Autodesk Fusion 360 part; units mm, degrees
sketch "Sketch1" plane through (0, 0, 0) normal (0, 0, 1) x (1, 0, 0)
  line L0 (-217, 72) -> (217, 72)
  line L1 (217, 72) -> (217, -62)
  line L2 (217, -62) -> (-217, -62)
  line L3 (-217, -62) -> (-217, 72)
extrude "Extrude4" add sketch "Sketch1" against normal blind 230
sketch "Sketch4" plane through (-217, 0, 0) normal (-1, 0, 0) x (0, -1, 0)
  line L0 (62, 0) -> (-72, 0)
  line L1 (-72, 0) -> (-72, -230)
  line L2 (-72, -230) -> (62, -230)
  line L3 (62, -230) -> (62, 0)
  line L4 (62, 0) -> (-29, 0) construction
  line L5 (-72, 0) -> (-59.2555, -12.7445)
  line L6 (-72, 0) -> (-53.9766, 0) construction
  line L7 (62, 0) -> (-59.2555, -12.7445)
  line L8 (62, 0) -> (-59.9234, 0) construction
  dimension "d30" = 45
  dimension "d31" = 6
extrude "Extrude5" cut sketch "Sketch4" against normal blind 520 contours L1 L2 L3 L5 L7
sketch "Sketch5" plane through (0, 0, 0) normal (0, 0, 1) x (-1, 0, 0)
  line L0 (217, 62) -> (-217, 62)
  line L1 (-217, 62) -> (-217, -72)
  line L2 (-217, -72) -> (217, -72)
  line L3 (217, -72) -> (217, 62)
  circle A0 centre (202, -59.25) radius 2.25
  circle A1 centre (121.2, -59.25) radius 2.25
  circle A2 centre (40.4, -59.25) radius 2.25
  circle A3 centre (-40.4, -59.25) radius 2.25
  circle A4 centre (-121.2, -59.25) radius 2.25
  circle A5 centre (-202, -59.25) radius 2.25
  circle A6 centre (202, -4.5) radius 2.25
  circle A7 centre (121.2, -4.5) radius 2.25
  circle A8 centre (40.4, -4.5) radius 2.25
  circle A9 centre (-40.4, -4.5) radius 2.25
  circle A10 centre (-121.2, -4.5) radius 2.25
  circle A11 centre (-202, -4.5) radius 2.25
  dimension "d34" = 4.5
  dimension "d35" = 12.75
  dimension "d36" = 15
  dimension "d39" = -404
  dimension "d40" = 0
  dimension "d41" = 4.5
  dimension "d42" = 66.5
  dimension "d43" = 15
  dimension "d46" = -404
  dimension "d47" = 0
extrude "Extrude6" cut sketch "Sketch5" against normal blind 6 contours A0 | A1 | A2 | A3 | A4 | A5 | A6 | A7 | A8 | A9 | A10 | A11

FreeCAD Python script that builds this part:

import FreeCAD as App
import Part
import Sketcher
Q = App.Units.Quantity


def add_polygon(sketch, points):
    """Adds a closed chain of lines whose ends are joined by coincident constraints."""
    first, n = sketch.GeometryCount, len(points)
    for a, b in zip(points, points[1:] + points[:1]):
        sketch.addGeometry(Part.LineSegment(App.Vector(*a, 0), App.Vector(*b, 0)), False)
    for i in range(n):
        sketch.addConstraint(Sketcher.Constraint("Coincident", first + i, 2, first + (i + 1) % n, 1))

doc = App.newDocument("Part")
body = doc.addObject("PartDesign::Body", "Body")

# Sketch on XY plane
sketch1 = doc.addObject("Sketcher::SketchObject", "Sketch")
body.addObject(sketch1)
sketch1.AttachmentSupport = (doc.XY_Plane, [""])
sketch1.MapMode = "FlatFace"
add_polygon(sketch1, [(217, 72), (-217, 72), (-217, -62), (217, -62)])  # lines 0-3
sketch1.addConstraint([
    Sketcher.Constraint("Horizontal", 0),
    Sketcher.Constraint("Vertical", 1),
    Sketcher.Constraint("Horizontal", 2),
    Sketcher.Constraint("Vertical", 3),
    Sketcher.Constraint("DistanceX", 0, 2, 0, 1, Q("434 mm")),
    Sketcher.Constraint("DistanceY", 1, 2, 1, 1, Q("134 mm")),
    Sketcher.Constraint("DistanceX", 0, 2, -1, 1, Q("217 mm")),
    Sketcher.Constraint("DistanceY", -1, 1, 0, 2, Q("72 mm")),
])
pad1 = doc.addObject("PartDesign::Pad", "Pad")
body.addObject(pad1)
pad1.Profile = sketch1
pad1.Length = 230
pad1.Reversed = True

# Sketch on YZ plane
sketch2 = doc.addObject("Sketcher::SketchObject", "Sketch001")
body.addObject(sketch2)
sketch2.AttachmentSupport = (doc.YZ_Plane, [""])
sketch2.MapMode = "FlatFace"
sketch2.AttachmentOffset = App.Placement(App.Vector(0, 0, -217), App.Rotation())
add_polygon(sketch2, [(-62, -230), (-62, 0), (59, -13), (72, 0), (72, -230)])  # lines 0-4
sketch2.addConstraint([
    Sketcher.Constraint("Vertical", 0),
    Sketcher.Constraint("Vertical", 3),
    Sketcher.Constraint("Horizontal", 4),
    Sketcher.Constraint("PointOnObject", 0, 2, -1),
    Sketcher.Constraint("PointOnObject", 2, 2, -1),
    Sketcher.Constraint("Angle", 1, Q("-6 deg")),
    Sketcher.Constraint("Angle", 2, Q("45 deg")),
    Sketcher.Constraint("DistanceX", 4, 2, 4, 1, Q("134 mm")),
    Sketcher.Constraint("DistanceY", 0, 1, 0, 2, Q("230 mm")),
    Sketcher.Constraint("DistanceX", 0, 2, -1, 1, Q("62 mm")),
])
pocket1 = doc.addObject("PartDesign::Pocket", "Pocket")
body.addObject(pocket1)
pocket1.Profile = sketch2
pocket1.Length = 520
pocket1.Reversed = True

# Sketch on XY plane
sketch3 = doc.addObject("Sketcher::SketchObject", "Sketch002")
body.addObject(sketch3)
sketch3.AttachmentSupport = (doc.XY_Plane, [""])
sketch3.MapMode = "FlatFace"
sketch3.addGeometry([
    Part.Circle(App.Vector(-202, 59.2, 0), App.Vector(0, 0, 1), 2.2),  # 0
    Part.Circle(App.Vector(-121.2, 59.2, 0), App.Vector(0, 0, 1), 2.2),  # 1
    Part.Circle(App.Vector(-40.4, 59.2, 0), App.Vector(0, 0, 1), 2.2),  # 2
    Part.Circle(App.Vector(40.4, 59.2, 0), App.Vector(0, 0, 1), 2.2),  # 3
    Part.Circle(App.Vector(121.2, 59.2, 0), App.Vector(0, 0, 1), 2.2),  # 4
    Part.Circle(App.Vector(202, 59.2, 0), App.Vector(0, 0, 1), 2.2),  # 5
    Part.Circle(App.Vector(-202, 4.5, 0), App.Vector(0, 0, 1), 2.2),  # 6
    Part.Circle(App.Vector(-121.2, 4.5, 0), App.Vector(0, 0, 1), 2.2),  # 7
    Part.Circle(App.Vector(-40.4, 4.5, 0), App.Vector(0, 0, 1), 2.2),  # 8
    Part.Circle(App.Vector(40.4, 4.5, 0), App.Vector(0, 0, 1), 2.2),  # 9
    Part.Circle(App.Vector(121.2, 4.5, 0), App.Vector(0, 0, 1), 2.2),  # 10
    Part.Circle(App.Vector(202, 4.5, 0), App.Vector(0, 0, 1), 2.2),  # 11
], False)
sketch3.addConstraint([
    Sketcher.Constraint("Equal", 0, 1),
    Sketcher.Constraint("Equal", 1, 2),
    Sketcher.Constraint("Equal", 2, 3),
    Sketcher.Constraint("Equal", 3, 4),
    Sketcher.Constraint("Equal", 4, 5),
    Sketcher.Constraint("Equal", 5, 6),
    Sketcher.Constraint("Equal", 6, 7),
    Sketcher.Constraint("Equal", 7, 8),
    Sketcher.Constraint("Equal", 8, 9),
    Sketcher.Constraint("Equal", 9, 10),
    Sketcher.Constraint("Equal", 10, 11),
    Sketcher.Constraint("Symmetric", 2, 3, 3, 3, -2),
    Sketcher.Constraint("Symmetric", 1, 3, 4, 3, -2),
    Sketcher.Constraint("Symmetric", 0, 3, 5, 3, -2),
    Sketcher.Constraint("Symmetric", 8, 3, 9, 3, -2),
    Sketcher.Constraint("Symmetric", 7, 3, 10, 3, -2),
    Sketcher.Constraint("Symmetric", 6, 3, 11, 3, -2),
    Sketcher.Constraint("Horizontal", 0, 3, 1, 3),
    Sketcher.Constraint("Horizontal", 1, 3, 2, 3),
    Sketcher.Constraint("Horizontal", 6, 3, 7, 3),
    Sketcher.Constraint("Horizontal", 7, 3, 8, 3),
    Sketcher.Constraint("Vertical", 0, 3, 6, 3),
    Sketcher.Constraint("Vertical", 1, 3, 7, 3),
    Sketcher.Constraint("Vertical", 2, 3, 8, 3),
    Sketcher.Constraint("Diameter", 0, Q("4.5 mm")),
    Sketcher.Constraint("DistanceX", 0, 3, 5, 3, Q("404 mm")),
    Sketcher.Constraint("DistanceY", -1, 1, 6, 3, Q("4.5 mm")),
    Sketcher.Constraint("DistanceX", 1, 3, -1, 1, Q("121.2 mm")),
    Sketcher.Constraint("DistanceX", 2, 3, -1, 1, Q("40.4 mm")),
    Sketcher.Constraint("DistanceY", -1, 1, 0, 3, Q("59.25 mm")),
])
pocket2 = doc.addObject("PartDesign::Pocket", "Pocket001")
body.addObject(pocket2)
pocket2.Profile = sketch3
pocket2.Length = 6

doc.recompute()
